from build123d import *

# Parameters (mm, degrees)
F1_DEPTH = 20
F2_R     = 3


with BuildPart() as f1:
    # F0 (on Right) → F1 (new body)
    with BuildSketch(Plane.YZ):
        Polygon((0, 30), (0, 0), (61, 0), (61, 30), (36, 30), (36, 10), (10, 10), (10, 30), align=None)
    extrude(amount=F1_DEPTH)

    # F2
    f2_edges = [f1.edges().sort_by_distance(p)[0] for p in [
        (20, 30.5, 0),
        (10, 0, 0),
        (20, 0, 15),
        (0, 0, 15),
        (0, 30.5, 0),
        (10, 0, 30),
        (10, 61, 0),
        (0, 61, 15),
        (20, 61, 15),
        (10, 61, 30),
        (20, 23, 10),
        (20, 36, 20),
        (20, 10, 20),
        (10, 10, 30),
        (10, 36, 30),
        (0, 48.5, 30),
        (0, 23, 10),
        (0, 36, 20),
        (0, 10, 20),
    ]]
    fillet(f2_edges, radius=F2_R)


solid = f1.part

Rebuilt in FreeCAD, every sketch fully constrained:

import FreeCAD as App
import Part
import Sketcher
from FreeCAD import Vector
Q = App.Units.Quantity


def edges_at(feature, points):
    """Names of the edges that pass closest to the given points."""
    edges = feature.Shape.Edges
    near = lambda p: min(range(len(edges)), key=lambda i: edges[i].distToShape(Part.Vertex(*p))[0])
    return sorted({f"Edge{near(p) + 1}" for p in points})

doc = App.newDocument("Part")
body = doc.addObject("PartDesign::Body", "Body")

sketch1 = body.newObject("Sketcher::SketchObject", "Sketch")
sketch1.AttachmentSupport = (doc.getObject("YZ_Plane"), [""])
sketch1.MapMode = "FlatFace"
sketch1.addGeometry(Part.LineSegment(Vector(0, 30, 0), Vector(0, 0, 0)), False)
sketch1.addGeometry(Part.LineSegment(Vector(0, 0, 0), Vector(61, 0, 0)), False)
sketch1.addGeometry(Part.LineSegment(Vector(61, 0, 0), Vector(61, 30, 0)), False)
sketch1.addGeometry(Part.LineSegment(Vector(61, 30, 0), Vector(36, 30, 0)), False)
sketch1.addGeometry(Part.LineSegment(Vector(36, 30, 0), Vector(36, 10, 0)), False)
sketch1.addGeometry(Part.LineSegment(Vector(36, 10, 0), Vector(10, 10, 0)), False)
sketch1.addGeometry(Part.LineSegment(Vector(10, 10, 0), Vector(10, 30, 0)), False)
sketch1.addGeometry(Part.LineSegment(Vector(10, 30, 0), Vector(0, 30, 0)), False)
sketch1.addConstraint(Sketcher.Constraint("Coincident", 0, 2, 1, 1))
sketch1.addConstraint(Sketcher.Constraint("Coincident", 1, 2, 2, 1))
sketch1.addConstraint(Sketcher.Constraint("Coincident", 2, 2, 3, 1))
sketch1.addConstraint(Sketcher.Constraint("Coincident", 3, 2, 4, 1))
sketch1.addConstraint(Sketcher.Constraint("Coincident", 4, 2, 5, 1))
sketch1.addConstraint(Sketcher.Constraint("Coincident", 5, 2, 6, 1))
sketch1.addConstraint(Sketcher.Constraint("Coincident", 6, 2, 7, 1))
sketch1.addConstraint(Sketcher.Constraint("Coincident", 7, 2, 0, 1))
sketch1.addConstraint(Sketcher.Constraint("Vertical", 0))
sketch1.addConstraint(Sketcher.Constraint("Horizontal", 1))
sketch1.addConstraint(Sketcher.Constraint("Vertical", 2))
sketch1.addConstraint(Sketcher.Constraint("Horizontal", 3))
sketch1.addConstraint(Sketcher.Constraint("Vertical", 4))
sketch1.addConstraint(Sketcher.Constraint("Horizontal", 5))
sketch1.addConstraint(Sketcher.Constraint("Vertical", 6))
sketch1.addConstraint(Sketcher.Constraint("Horizontal", 7))
sketch1.addConstraint(Sketcher.Constraint("Coincident", 0, 2, -1, 1))
sketch1.addConstraint(Sketcher.Constraint("Horizontal", 3, 2, 6, 2))
sketch1.addConstraint(Sketcher.Constraint("DistanceX", 1, 1, 1, 2, Q("61 mm")))
sketch1.addConstraint(Sketcher.Constraint("DistanceX", 3, 2, 3, 1, Q("25 mm")))
sketch1.addConstraint(Sketcher.Constraint("DistanceX", 5, 2, 5, 1, Q("26 mm")))
sketch1.addConstraint(Sketcher.Constraint("DistanceY", 0, 2, 0, 1, Q("30 mm")))
sketch1.addConstraint(Sketcher.Constraint("DistanceY", 4, 2, 4, 1, Q("20 mm")))
pad1 = body.newObject("PartDesign::Pad", "Pad")
pad1.Profile = sketch1
pad1.Length = 20
doc.recompute()

fillet = body.newObject("PartDesign::Fillet", "Fillet")
fillet.Base = (pad1, edges_at(pad1, [
    (20, 30.5, 0),
    (10, 0, 0),
    (20, 0, 15),
    (0, 0, 15),
    (0, 30.5, 0),
    (10, 0, 30),
    (10, 61, 0),
    (0, 61, 15),
    (20, 61, 15),
    (10, 61, 30),
    (20, 23, 10),
    (20, 36, 20),
    (20, 10, 20),
    (10, 10, 30),
    (10, 36, 30),
    (0, 48.5, 30),
    (0, 23, 10),
    (0, 36, 20),
    (0, 10, 20),
]))
fillet.Radius = 3

doc.recompute()
